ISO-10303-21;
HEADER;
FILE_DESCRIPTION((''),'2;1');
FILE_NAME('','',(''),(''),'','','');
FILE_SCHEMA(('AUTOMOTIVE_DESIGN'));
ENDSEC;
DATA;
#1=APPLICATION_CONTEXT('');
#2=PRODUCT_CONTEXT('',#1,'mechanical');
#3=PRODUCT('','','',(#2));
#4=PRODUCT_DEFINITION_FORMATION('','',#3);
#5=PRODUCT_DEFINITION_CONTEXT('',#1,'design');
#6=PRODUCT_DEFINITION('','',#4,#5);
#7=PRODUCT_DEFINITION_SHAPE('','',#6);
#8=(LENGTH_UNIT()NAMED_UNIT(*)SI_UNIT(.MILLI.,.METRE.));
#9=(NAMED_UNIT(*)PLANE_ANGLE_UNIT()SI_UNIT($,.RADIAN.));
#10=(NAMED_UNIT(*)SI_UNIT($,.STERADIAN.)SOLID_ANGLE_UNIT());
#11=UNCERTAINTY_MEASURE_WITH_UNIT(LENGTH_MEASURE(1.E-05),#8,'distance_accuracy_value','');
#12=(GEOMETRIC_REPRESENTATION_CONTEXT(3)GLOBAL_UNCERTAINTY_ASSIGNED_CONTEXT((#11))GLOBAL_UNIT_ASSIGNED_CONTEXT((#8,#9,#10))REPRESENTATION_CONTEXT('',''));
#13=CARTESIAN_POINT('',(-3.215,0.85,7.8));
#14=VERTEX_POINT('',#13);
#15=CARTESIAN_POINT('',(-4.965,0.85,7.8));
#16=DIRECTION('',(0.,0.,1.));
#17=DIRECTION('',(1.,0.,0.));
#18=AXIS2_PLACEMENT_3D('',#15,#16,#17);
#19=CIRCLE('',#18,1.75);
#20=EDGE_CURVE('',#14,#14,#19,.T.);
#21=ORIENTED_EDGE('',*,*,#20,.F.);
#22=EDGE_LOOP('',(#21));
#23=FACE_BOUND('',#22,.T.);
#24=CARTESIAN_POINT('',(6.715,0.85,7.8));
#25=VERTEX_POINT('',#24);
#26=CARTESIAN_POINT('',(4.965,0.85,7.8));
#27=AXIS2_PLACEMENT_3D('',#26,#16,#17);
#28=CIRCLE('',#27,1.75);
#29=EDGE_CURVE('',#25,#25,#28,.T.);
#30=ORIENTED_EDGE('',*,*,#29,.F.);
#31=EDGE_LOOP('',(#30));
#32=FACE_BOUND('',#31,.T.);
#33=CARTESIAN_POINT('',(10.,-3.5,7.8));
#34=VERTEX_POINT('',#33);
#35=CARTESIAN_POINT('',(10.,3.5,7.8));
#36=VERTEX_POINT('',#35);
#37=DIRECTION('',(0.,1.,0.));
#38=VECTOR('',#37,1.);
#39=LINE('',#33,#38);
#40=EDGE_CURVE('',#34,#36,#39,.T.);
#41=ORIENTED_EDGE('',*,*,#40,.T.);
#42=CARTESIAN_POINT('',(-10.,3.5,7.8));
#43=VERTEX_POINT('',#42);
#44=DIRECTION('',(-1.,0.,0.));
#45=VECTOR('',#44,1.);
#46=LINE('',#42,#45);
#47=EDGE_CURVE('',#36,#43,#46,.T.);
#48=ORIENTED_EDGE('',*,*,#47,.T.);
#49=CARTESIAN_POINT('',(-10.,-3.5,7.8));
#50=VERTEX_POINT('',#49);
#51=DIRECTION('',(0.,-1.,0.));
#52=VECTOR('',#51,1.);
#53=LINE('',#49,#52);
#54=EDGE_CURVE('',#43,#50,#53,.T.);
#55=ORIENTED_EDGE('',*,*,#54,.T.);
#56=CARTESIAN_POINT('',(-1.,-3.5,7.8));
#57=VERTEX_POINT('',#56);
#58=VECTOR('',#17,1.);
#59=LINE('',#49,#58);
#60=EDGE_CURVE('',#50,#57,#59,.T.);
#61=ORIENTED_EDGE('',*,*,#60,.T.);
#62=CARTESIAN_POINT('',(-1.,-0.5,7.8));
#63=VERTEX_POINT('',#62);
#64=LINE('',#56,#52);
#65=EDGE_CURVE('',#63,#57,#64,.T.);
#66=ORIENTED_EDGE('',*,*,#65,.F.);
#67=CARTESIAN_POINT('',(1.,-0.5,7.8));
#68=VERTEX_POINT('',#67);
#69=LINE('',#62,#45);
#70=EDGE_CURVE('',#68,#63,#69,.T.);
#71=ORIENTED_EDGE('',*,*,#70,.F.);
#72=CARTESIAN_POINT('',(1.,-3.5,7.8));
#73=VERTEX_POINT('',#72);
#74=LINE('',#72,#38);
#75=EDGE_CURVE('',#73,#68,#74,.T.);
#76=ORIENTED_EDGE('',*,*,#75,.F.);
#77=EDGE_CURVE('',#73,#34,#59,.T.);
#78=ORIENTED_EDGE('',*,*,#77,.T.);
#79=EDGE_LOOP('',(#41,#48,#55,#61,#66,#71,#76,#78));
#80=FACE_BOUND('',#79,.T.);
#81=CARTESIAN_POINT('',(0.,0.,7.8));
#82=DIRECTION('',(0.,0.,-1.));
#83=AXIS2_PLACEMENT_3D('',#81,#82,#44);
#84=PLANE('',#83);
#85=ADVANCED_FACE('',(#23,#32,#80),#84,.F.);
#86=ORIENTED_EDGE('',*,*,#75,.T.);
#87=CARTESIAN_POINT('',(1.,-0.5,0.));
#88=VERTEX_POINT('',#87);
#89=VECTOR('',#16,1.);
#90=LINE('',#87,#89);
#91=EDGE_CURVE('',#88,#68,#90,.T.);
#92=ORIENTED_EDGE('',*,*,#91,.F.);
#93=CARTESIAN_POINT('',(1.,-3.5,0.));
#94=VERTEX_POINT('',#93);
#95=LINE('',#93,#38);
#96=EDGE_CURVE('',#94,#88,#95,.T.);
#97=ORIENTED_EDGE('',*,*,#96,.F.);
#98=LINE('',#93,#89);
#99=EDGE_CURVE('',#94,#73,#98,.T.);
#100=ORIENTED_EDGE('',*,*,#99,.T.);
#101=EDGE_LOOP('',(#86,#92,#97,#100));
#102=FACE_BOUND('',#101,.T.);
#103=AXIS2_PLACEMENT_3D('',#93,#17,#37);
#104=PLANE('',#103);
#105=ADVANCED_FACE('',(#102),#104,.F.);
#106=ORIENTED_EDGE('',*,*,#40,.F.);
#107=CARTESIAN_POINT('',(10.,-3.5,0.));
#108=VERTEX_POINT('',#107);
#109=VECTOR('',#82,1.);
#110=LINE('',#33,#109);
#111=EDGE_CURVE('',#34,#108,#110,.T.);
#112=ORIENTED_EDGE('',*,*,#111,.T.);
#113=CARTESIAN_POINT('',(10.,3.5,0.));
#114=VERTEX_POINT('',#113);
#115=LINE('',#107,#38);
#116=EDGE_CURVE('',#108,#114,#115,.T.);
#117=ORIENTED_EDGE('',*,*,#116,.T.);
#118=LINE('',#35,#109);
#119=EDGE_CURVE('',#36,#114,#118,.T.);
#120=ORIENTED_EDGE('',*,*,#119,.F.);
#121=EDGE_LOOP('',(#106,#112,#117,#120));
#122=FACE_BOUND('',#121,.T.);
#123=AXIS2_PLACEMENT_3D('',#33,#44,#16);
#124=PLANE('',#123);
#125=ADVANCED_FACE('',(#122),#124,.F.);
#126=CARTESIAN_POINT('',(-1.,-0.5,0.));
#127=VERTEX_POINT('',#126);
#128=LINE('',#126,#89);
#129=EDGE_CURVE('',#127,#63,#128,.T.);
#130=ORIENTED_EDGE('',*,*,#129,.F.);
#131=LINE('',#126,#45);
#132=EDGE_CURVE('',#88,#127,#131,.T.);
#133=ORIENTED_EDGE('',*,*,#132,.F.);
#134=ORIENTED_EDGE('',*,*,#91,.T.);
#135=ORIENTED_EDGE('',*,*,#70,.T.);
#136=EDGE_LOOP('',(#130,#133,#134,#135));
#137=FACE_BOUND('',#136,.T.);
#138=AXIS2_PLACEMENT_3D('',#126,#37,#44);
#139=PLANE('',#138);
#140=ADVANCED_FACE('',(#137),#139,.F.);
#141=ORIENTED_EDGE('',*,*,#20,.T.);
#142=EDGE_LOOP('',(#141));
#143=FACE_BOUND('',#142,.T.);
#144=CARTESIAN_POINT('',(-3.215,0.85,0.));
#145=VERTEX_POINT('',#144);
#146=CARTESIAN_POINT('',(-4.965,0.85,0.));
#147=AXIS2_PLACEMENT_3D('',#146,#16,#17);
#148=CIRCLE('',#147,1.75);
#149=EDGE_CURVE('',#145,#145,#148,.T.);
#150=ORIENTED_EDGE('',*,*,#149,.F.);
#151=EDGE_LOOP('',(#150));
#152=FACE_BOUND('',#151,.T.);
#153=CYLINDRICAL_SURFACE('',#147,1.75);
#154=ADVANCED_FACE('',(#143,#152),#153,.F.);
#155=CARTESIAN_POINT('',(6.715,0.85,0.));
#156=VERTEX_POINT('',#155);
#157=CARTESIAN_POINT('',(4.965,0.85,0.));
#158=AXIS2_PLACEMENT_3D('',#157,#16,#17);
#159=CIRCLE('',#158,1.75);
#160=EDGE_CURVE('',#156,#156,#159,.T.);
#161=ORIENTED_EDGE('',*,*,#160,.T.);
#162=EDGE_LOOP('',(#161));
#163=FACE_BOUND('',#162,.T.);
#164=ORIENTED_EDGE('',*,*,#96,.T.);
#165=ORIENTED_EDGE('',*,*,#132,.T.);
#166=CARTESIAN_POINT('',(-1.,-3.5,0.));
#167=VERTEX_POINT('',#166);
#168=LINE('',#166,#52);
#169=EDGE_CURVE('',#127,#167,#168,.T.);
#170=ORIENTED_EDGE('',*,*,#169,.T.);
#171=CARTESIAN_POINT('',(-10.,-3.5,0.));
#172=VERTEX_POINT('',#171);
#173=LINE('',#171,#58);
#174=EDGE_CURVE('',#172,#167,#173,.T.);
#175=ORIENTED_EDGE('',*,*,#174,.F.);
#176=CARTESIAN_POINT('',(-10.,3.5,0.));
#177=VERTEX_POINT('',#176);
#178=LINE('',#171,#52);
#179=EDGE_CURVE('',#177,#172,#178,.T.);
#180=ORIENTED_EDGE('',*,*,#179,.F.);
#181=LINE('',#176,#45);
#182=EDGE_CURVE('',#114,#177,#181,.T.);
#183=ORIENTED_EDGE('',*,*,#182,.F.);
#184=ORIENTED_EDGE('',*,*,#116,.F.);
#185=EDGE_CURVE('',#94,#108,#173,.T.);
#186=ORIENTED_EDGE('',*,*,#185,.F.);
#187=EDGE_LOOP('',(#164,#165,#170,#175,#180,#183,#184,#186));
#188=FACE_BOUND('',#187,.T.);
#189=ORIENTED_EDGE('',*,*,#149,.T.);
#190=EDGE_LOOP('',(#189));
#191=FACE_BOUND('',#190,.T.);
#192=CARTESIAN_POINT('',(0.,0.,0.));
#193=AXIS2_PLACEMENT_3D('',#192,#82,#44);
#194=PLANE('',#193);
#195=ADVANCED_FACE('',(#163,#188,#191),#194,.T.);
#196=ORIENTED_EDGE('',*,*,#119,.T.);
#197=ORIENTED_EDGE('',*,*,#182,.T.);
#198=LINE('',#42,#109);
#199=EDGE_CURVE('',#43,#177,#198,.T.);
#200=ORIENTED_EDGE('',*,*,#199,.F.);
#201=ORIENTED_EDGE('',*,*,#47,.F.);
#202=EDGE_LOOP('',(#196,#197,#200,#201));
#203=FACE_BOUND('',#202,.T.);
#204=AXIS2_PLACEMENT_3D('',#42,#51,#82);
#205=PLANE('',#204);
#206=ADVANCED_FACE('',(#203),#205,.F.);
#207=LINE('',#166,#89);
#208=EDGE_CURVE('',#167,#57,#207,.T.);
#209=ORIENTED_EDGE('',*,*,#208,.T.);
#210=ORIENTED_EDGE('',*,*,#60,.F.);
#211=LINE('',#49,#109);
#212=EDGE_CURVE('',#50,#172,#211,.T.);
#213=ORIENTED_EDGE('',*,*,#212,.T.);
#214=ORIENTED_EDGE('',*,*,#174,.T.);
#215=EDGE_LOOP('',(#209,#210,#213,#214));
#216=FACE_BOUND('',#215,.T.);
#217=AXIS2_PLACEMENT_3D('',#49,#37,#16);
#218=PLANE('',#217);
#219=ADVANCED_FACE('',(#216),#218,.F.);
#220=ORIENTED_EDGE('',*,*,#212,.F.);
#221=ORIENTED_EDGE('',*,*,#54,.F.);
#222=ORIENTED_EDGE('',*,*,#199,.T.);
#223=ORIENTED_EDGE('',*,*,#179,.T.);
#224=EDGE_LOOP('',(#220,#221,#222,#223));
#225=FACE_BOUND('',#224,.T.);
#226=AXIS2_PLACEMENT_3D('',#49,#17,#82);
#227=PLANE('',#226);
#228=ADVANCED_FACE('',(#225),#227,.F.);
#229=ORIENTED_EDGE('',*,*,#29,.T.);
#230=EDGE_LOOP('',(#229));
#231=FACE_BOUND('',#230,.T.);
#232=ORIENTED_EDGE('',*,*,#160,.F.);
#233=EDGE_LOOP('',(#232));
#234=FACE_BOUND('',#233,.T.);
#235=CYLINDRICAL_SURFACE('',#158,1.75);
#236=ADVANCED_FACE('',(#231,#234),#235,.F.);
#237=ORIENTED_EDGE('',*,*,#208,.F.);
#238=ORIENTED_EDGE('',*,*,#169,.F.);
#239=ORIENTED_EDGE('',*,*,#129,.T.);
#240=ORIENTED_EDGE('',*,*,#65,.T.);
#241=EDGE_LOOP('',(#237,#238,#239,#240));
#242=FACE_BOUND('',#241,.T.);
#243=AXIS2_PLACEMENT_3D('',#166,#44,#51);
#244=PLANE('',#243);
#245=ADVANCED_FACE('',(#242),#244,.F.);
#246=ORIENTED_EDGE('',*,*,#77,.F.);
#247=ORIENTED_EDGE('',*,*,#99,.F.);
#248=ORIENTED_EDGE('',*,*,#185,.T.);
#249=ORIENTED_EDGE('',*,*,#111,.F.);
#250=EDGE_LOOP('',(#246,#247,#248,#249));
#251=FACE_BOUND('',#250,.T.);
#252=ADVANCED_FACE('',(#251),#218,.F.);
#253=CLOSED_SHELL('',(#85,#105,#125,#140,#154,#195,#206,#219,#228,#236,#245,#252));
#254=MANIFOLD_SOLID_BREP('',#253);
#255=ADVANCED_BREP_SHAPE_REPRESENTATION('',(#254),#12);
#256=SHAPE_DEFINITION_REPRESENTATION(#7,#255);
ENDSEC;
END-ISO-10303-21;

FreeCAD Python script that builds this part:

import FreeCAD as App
import Part
import Sketcher
Q = App.Units.Quantity


def add_polygon(sketch, points):
    """Adds a closed chain of lines whose ends are joined by coincident constraints."""
    first, n = sketch.GeometryCount, len(points)
    for a, b in zip(points, points[1:] + points[:1]):
        sketch.addGeometry(Part.LineSegment(App.Vector(*a, 0), App.Vector(*b, 0)), False)
    for i in range(n):
        sketch.addConstraint(Sketcher.Constraint("Coincident", first + i, 2, first + (i + 1) % n, 1))

doc = App.newDocument("Part")
body = doc.addObject("PartDesign::Body", "Body")

# Sketch on XY plane
sketch1 = body.newObject("Sketcher::SketchObject", "Sketch")
sketch1.AttachmentSupport = (doc.getObject("XY_Plane"), [""])
sketch1.MapMode = "FlatFace"
add_polygon(sketch1, [(-10, 3.5), (-10, -3.5), (10, -3.5), (10, 3.5)])  # lines 0-3
sketch1.addConstraint([
    Sketcher.Constraint("Vertical", 0),
    Sketcher.Constraint("Horizontal", 1),
    Sketcher.Constraint("Vertical", 2),
    Sketcher.Constraint("Horizontal", 3),
    Sketcher.Constraint("Symmetric", 0, 2, 2, 2, -1, 1),
    Sketcher.Constraint("DistanceX", 1, 1, 1, 2, Q("20 mm")),
    Sketcher.Constraint("DistanceY", 0, 2, 0, 1, Q("7 mm")),
])
pad1 = body.newObject("PartDesign::Pad", "Pad")
pad1.Profile = sketch1
pad1.Length = 7.8

# Sketch on XY plane
sketch2 = body.newObject("Sketcher::SketchObject", "Sketch001")
sketch2.AttachmentSupport = (doc.getObject("XY_Plane"), [""])
sketch2.MapMode = "FlatFace"
sketch2.AttachmentOffset = App.Placement(App.Vector(0, 0, 7.8), App.Rotation())
sketch2.addGeometry([
    Part.Circle(App.Vector(-4.965, 0.85, 0), App.Vector(0, 0, 1), 1.75),
    Part.Circle(App.Vector(4.965, 0.85, 0), App.Vector(0, 0, 1), 1.75),
], False)
sketch2.addConstraint([
    Sketcher.Constraint("Equal", 0, 1),
    Sketcher.Constraint("Symmetric", 0, 3, 1, 3, -2),
    Sketcher.Constraint("Diameter", 0, Q("3.5 mm")),
    Sketcher.Constraint("DistanceY", -1, 1, 0, 3, Q("0.85 mm")),
    Sketcher.Constraint("DistanceX", 0, 3, 1, 3, Q("9.93 mm")),
])
pocket1 = body.newObject("PartDesign::Pocket", "Pocket")
pocket1.Profile = sketch2
pocket1.Length = 7.8

# Sketch on XY plane
sketch3 = body.newObject("Sketcher::SketchObject", "Sketch002")
sketch3.AttachmentSupport = (doc.getObject("XY_Plane"), [""])
sketch3.MapMode = "FlatFace"
sketch3.AttachmentOffset = App.Placement(App.Vector(0, 0, 7.8), App.Rotation())
add_polygon(sketch3, [(-1, -0.5), (-1, -3.5), (1, -3.5), (1, -0.5)])  # lines 0-3
sketch3.addConstraint([
    Sketcher.Constraint("Vertical", 0),
    Sketcher.Constraint("Horizontal", 1),
    Sketcher.Constraint("Vertical", 2),
    Sketcher.Constraint("Horizontal", 3),
    Sketcher.Constraint("DistanceX", 1, 1, 1, 2, Q("2 mm")),
    Sketcher.Constraint("DistanceY", 0, 2, 0, 1, Q("3 mm")),
    Sketcher.Constraint("DistanceX", 0, 2, -1, 1, Q("1 mm")),
    Sketcher.Constraint("DistanceY", 0, 2, -1, 1, Q("3.5 mm")),
])
pocket2 = body.newObject("PartDesign::Pocket", "Pocket001")
pocket2.Profile = sketch3
pocket2.Length = 7.8

doc.recompute()
